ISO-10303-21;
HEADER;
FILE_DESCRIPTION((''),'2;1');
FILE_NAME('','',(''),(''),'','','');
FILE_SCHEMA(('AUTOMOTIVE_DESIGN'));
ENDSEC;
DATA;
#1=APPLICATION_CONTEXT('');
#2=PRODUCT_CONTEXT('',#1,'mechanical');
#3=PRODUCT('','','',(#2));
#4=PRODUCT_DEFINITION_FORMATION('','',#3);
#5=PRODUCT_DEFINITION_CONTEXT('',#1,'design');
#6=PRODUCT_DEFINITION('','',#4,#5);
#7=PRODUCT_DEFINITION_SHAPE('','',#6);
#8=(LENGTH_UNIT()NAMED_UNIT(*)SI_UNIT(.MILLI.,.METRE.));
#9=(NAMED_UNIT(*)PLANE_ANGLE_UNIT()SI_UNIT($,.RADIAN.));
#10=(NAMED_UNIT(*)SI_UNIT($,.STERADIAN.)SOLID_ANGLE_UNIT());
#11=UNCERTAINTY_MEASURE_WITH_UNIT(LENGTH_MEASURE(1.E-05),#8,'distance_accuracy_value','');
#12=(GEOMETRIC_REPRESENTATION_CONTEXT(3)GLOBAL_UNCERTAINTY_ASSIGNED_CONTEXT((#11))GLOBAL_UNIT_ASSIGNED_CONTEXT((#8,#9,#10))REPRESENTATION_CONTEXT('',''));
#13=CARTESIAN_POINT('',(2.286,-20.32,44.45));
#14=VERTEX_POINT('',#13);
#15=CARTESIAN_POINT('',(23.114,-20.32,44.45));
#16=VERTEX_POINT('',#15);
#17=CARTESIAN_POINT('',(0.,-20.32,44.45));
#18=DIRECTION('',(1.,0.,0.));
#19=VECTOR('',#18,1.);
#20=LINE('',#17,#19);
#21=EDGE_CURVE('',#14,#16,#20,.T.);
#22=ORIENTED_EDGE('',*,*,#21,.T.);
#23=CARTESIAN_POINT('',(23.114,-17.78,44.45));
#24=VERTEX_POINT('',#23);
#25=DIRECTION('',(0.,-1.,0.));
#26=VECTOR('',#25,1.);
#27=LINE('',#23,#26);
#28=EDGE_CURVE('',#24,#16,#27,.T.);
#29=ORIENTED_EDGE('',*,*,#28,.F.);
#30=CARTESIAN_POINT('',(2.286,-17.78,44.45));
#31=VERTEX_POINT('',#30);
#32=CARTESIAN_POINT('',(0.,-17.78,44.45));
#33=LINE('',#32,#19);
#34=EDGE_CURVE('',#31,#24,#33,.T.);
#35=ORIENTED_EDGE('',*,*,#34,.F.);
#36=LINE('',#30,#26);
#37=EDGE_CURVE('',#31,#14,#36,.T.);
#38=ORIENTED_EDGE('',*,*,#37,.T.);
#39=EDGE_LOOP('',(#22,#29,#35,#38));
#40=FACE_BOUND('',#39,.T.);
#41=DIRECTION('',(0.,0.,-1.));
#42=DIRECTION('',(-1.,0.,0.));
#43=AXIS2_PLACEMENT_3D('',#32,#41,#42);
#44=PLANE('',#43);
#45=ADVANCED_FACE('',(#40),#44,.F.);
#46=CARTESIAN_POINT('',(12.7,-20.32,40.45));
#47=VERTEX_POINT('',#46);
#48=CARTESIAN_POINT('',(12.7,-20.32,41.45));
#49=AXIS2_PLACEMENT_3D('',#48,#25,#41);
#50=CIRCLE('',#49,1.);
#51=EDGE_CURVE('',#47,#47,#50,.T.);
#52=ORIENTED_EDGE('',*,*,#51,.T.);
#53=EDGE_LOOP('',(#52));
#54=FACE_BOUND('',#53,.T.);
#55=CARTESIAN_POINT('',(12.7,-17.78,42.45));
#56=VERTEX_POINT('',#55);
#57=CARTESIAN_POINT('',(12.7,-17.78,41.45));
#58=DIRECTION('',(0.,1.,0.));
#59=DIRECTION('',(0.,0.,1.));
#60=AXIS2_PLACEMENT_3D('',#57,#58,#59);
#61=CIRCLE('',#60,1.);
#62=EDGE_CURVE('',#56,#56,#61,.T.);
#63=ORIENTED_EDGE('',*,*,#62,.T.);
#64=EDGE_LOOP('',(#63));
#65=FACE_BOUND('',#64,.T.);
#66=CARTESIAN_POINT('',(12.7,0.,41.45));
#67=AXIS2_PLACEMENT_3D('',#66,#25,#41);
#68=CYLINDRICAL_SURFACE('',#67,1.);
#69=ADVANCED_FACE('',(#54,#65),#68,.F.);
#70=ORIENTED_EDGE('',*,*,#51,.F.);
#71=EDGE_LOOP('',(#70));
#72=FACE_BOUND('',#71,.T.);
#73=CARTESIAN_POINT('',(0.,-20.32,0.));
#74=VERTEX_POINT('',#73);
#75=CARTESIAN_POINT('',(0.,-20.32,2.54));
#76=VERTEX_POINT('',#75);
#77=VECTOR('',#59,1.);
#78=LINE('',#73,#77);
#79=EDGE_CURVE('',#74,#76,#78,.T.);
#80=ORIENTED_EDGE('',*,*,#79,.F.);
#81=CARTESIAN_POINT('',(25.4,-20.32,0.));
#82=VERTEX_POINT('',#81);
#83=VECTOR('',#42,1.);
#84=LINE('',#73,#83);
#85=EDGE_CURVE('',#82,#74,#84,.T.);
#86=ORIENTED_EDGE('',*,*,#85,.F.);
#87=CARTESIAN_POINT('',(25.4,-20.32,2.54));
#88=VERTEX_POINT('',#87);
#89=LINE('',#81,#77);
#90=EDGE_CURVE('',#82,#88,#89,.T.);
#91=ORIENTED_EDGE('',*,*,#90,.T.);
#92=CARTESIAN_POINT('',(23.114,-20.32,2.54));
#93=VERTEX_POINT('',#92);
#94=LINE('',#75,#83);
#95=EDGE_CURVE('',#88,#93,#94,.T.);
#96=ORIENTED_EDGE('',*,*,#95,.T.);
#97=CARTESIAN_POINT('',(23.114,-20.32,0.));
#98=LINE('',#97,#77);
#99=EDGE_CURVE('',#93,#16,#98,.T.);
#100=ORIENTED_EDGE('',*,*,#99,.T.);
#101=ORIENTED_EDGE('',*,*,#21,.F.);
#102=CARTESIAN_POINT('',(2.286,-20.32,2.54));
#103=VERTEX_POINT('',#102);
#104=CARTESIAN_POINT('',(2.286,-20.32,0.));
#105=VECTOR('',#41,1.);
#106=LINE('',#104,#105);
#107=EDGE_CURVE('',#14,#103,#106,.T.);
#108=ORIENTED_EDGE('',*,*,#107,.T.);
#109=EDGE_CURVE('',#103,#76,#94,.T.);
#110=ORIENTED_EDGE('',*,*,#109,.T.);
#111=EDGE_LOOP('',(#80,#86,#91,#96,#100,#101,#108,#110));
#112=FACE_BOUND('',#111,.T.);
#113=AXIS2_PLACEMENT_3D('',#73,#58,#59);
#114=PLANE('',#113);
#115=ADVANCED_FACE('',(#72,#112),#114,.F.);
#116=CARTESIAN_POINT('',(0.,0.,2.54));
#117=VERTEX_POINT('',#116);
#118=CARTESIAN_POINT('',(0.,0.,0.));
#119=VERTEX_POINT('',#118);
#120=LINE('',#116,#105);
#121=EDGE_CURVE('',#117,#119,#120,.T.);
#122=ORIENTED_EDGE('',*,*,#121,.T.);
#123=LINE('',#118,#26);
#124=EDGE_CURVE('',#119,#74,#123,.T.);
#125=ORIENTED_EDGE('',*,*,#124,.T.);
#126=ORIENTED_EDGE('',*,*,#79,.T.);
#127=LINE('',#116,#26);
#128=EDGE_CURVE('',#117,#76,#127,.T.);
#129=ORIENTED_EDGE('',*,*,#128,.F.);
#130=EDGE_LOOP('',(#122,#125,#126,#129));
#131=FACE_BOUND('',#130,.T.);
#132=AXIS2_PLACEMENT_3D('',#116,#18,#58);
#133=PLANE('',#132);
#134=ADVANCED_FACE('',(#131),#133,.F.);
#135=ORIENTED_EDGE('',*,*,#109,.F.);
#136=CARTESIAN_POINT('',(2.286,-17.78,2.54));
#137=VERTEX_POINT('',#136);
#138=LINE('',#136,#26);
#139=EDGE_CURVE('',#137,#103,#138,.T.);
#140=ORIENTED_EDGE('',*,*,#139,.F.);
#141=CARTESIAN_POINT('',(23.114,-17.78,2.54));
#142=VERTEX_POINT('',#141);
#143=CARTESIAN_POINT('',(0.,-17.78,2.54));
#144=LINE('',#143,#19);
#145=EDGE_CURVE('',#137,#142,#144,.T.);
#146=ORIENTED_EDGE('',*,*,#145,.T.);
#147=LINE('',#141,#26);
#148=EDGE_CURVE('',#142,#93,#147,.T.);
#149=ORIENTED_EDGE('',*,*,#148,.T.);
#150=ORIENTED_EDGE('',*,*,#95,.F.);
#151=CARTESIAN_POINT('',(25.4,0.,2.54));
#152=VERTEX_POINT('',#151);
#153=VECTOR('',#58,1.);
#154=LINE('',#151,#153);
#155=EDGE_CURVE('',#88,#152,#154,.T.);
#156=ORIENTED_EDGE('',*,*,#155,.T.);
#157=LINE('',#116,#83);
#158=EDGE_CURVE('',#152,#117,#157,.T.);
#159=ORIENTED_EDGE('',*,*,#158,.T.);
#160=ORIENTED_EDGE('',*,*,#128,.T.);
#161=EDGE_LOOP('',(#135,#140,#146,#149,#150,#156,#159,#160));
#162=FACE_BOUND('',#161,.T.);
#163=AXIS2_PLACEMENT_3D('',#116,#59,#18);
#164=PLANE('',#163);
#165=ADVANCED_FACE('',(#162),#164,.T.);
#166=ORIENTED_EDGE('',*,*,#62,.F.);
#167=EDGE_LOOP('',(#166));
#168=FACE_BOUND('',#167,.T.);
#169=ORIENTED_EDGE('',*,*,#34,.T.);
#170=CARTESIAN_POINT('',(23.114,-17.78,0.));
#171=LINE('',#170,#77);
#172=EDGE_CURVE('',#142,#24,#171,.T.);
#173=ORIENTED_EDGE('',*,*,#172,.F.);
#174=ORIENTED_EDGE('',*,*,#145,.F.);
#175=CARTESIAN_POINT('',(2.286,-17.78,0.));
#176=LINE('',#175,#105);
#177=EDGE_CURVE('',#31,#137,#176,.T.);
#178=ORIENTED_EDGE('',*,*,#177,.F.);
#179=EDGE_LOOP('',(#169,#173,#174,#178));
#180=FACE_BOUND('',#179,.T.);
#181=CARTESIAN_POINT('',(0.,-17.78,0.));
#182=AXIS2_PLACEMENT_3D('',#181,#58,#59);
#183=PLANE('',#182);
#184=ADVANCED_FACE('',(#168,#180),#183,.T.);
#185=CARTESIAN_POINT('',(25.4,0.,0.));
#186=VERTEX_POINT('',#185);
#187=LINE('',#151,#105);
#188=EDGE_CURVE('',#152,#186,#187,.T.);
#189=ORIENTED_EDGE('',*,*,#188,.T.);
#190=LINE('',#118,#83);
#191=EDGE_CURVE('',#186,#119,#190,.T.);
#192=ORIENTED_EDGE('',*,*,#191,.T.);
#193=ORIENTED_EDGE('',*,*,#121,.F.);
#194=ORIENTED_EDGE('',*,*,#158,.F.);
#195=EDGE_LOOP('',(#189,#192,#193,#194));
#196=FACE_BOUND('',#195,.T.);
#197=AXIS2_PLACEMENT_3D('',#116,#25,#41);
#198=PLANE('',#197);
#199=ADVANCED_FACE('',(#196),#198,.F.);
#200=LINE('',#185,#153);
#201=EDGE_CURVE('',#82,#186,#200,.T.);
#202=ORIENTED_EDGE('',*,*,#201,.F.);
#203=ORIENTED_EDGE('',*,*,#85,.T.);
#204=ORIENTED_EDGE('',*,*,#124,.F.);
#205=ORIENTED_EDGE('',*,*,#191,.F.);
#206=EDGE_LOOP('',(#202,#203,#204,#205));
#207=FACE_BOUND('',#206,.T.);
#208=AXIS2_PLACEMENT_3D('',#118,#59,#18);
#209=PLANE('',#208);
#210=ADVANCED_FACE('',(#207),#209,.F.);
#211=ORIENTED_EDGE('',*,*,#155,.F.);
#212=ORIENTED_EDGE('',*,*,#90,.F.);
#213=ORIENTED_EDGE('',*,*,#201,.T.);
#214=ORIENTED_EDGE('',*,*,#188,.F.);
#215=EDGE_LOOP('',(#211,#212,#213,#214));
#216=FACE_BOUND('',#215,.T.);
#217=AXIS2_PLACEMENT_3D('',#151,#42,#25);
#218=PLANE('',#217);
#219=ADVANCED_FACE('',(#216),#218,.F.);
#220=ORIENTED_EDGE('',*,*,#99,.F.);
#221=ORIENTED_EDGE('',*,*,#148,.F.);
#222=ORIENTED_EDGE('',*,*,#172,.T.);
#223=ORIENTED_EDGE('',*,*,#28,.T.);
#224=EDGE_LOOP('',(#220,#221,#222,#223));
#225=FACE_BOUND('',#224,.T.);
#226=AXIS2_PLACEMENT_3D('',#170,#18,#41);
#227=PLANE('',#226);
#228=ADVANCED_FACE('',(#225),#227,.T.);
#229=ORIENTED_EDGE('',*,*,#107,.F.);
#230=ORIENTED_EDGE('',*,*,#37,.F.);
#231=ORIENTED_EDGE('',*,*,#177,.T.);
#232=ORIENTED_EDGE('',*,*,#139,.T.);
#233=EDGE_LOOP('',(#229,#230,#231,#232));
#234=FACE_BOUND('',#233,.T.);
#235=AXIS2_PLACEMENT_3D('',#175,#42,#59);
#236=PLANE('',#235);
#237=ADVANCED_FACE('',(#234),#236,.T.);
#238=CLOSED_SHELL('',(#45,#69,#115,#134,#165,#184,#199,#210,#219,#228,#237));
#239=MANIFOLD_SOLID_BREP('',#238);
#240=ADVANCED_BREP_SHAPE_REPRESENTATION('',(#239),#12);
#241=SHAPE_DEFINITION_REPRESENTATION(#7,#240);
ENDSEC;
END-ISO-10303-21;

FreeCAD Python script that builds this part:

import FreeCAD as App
import Part
import Sketcher
from FreeCAD import Vector
Q = App.Units.Quantity


def add_polygon(sketch, points):
    """Adds a closed chain of lines whose ends are joined by coincident constraints."""
    first, n = sketch.GeometryCount, len(points)
    for a, b in zip(points, points[1:] + points[:1]):
        sketch.addGeometry(Part.LineSegment(App.Vector(*a, 0), App.Vector(*b, 0)), False)
    for i in range(n):
        sketch.addConstraint(Sketcher.Constraint("Coincident", first + i, 2, first + (i + 1) % n, 1))

doc = App.newDocument("Part")
params = doc.addObject("Spreadsheet::Sheet", "Params")
for row, (alias, value) in enumerate([
    ("sketch1_width", "1 in"),
    ("pad1_length", "0.1 in"),
    ("sketch2_width", "0.82 in"),
    ("sketch2_height", "1.65 in"),
    ("pad2_length", "0.1 in"),
    ("sketch3_width", "1 in"),
    ("sketch3_height", "0.2 in"),
], start=1):
    params.set(f"A{row}", alias)
    params.set(f"B{row}", "=" + value)
    params.setAlias(f"B{row}", alias)

body = doc.addObject("PartDesign::Body", "Body")

# Sketch on XY plane
sketch1 = body.newObject("Sketcher::SketchObject", "Sketch")
sketch1.AttachmentSupport = (doc.getObject("XY_Plane"), [""])
sketch1.MapMode = "FlatFace"
add_polygon(sketch1, [(0, 0), (0, -25.4), (25.4, -25.4), (25.4, 0)])  # lines 0-3
sketch1.addConstraint([
    Sketcher.Constraint("Vertical", 0),
    Sketcher.Constraint("Horizontal", 1),
    Sketcher.Constraint("Vertical", 2),
    Sketcher.Constraint("Horizontal", 3),
    Sketcher.Constraint("Coincident", 3, 2, -1, 1),
    Sketcher.Constraint("Equal", 3, 0),
    Sketcher.Constraint("DistanceX", 1, 1, 1, 2, Q("1 in")),
])
sketch1.setExpression("Constraints[10]", "Params.sketch1_width")
pad1 = body.newObject("PartDesign::Pad", "Pad")
pad1.Profile = sketch1
pad1.setExpression("Length", "Params.pad1_length")

# Sketch on XZ plane
sketch2 = body.newObject("Sketcher::SketchObject", "Sketch001")
sketch2.AttachmentSupport = (doc.getObject("XZ_Plane"), [""])
sketch2.MapMode = "FlatFace"
sketch2.AttachmentOffset = App.Placement(Vector(0, 0, 0.75 * 25.4), App.Rotation())
add_polygon(sketch2, [(2.286, 2.54), (2.286, 44.45), (23.114, 44.45), (23.114, 2.54)])  # lines 0-3
sketch2.addConstraint([
    Sketcher.Constraint("Vertical", 0),
    Sketcher.Constraint("Horizontal", 1),
    Sketcher.Constraint("Vertical", 2),
    Sketcher.Constraint("Horizontal", 3),
    Sketcher.Constraint("DistanceX", 1, 1, 1, 2, Q("0.82 in")),
    Sketcher.Constraint("DistanceY", 0, 1, 0, 2, Q("1.65 in")),
    Sketcher.Constraint("DistanceY", -1, 1, 2, 2, Q("0.1 in")),
    Sketcher.Constraint("DistanceX", -1, 1, 0, 2, Q("0.09 in")),
])
sketch2.setExpression("Constraints[8]", "Params.sketch2_width")
sketch2.setExpression("Constraints[9]", "Params.sketch2_height")
pad2 = body.newObject("PartDesign::Pad", "Pad001")
pad2.Profile = sketch2
pad2.setExpression("Length", "Params.pad2_length")
pad2.Midplane = True

# Sketch on XY plane
sketch3 = body.newObject("Sketcher::SketchObject", "Sketch002")
sketch3.AttachmentSupport = (doc.getObject("XY_Plane"), [""])
sketch3.MapMode = "FlatFace"
sketch3.AttachmentOffset = App.Placement(Vector(0, 0, 1.75 * 25.4), App.Rotation())
add_polygon(sketch3, [(0, -20.32), (0, -25.4), (25.4, -25.4), (25.4, -20.32)])  # lines 0-3
sketch3.addConstraint([
    Sketcher.Constraint("Vertical", 0),
    Sketcher.Constraint("Horizontal", 1),
    Sketcher.Constraint("Vertical", 2),
    Sketcher.Constraint("Horizontal", 3),
    Sketcher.Constraint("PointOnObject", 0, 2, -2),
    Sketcher.Constraint("DistanceX", 1, 1, 1, 2, Q("1 in")),
    Sketcher.Constraint("DistanceY", 0, 2, 0, 1, Q("0.2 in")),
    Sketcher.Constraint("DistanceY", 0, 2, -1, 1, Q("1 in")),
])
sketch3.setExpression("Constraints[9]", "Params.sketch3_width")
sketch3.setExpression("Constraints[10]", "Params.sketch3_height")
pocket1 = body.newObject("PartDesign::Pocket", "Pocket")
pocket1.Profile = sketch3
pocket1.Type = "ThroughAll"

# Sketch on XZ plane
sketch4 = body.newObject("Sketcher::SketchObject", "Sketch003")
sketch4.AttachmentSupport = (doc.getObject("XZ_Plane"), [""])
sketch4.MapMode = "FlatFace"
sketch4.AttachmentOffset = App.Placement(Vector(0, 0, 0.8 * 25.4), App.Rotation())
sketch4.addGeometry(Part.Circle(Vector(12.7, 41.45, 0), Vector(0, 0, 1), 1), False)
sketch4.addConstraint([
    Sketcher.Constraint("DistanceX", -1, 1, 0, 3, Q("0.5 in")),
    Sketcher.Constraint("Diameter", 0, 2.0),
    Sketcher.Constraint("DistanceY", -1, 1, 0, 3, 41.45),
])
pocket2 = body.newObject("PartDesign::Pocket", "Pocket001")
pocket2.Profile = sketch4
pocket2.Type = "ThroughAll"

doc.recompute()
